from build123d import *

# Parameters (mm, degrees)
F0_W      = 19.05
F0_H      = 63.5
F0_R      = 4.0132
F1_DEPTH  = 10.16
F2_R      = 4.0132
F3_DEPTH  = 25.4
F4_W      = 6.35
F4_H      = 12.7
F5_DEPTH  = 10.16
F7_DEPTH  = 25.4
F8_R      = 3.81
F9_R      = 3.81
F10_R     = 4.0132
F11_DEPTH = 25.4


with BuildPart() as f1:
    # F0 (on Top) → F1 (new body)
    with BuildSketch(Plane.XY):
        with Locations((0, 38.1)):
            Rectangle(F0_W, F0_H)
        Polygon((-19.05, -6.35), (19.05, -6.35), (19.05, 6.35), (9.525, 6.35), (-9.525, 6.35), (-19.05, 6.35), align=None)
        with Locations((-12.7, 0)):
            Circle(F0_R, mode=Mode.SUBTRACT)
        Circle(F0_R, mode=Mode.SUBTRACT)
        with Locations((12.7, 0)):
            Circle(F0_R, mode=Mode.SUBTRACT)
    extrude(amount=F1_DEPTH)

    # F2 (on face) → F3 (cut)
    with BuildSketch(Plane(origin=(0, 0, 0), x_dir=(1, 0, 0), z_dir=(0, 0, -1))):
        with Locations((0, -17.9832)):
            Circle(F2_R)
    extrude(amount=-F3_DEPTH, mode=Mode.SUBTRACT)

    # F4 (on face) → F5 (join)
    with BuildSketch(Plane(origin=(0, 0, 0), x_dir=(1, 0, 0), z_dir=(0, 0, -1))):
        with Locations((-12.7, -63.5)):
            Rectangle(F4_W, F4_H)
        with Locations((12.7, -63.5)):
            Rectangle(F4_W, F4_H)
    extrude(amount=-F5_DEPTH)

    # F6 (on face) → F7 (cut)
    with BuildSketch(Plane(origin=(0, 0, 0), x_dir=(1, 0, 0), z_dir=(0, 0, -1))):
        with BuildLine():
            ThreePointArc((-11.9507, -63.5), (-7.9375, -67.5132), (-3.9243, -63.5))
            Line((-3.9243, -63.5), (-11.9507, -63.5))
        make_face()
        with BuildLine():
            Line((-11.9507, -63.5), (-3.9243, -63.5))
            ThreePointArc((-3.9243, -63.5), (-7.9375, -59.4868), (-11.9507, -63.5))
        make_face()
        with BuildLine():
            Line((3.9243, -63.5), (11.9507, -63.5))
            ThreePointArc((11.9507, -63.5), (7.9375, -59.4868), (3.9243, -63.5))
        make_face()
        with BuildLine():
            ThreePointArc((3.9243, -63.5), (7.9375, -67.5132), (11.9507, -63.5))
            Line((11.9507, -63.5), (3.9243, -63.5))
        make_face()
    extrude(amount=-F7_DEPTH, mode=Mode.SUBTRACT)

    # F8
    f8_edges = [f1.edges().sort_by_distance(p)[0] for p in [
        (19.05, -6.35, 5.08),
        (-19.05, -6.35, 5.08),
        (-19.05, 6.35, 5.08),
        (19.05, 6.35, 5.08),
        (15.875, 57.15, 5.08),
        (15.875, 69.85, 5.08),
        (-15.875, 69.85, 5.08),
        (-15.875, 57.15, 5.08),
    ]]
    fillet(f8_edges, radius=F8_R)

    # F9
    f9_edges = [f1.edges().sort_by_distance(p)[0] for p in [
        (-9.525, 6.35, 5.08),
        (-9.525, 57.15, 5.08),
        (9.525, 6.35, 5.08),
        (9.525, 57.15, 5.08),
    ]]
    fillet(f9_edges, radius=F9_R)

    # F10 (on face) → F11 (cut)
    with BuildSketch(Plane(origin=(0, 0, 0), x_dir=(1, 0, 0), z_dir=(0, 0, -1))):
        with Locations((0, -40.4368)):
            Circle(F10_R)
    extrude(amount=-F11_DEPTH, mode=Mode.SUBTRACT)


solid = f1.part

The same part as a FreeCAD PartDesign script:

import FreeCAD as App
import Part
import Sketcher

V = App.Vector
Q = App.Units.Quantity


def edges_at(feature, points):
    """Names of the edges that pass closest to the given points."""
    edges = feature.Shape.Edges
    near = lambda p: min(range(len(edges)), key=lambda i: edges[i].distToShape(Part.Vertex(*p))[0])
    return sorted({f"Edge{near(p) + 1}" for p in points})


def add_polygon(sketch, points):
    """Adds a closed chain of lines whose ends are joined by coincident constraints."""
    first, n = sketch.GeometryCount, len(points)
    for a, b in zip(points, points[1:] + points[:1]):
        sketch.addGeometry(Part.LineSegment(App.Vector(*a, 0), App.Vector(*b, 0)), False)
    for i in range(n):
        sketch.addConstraint(Sketcher.Constraint("Coincident", first + i, 2, first + (i + 1) % n, 1))

doc = App.newDocument("Part")
params = doc.addObject("Spreadsheet::Sheet", "Params")
for row, (alias, value) in enumerate([
    ("sketch1_diameter", "0.316 in"),
    ("sketch1_width", "1.5 in"),
    ("sketch1_height", "2.5 in"),
    ("sketch1_height2", "0.5 in"),
    ("sketch1_width2", "0.75 in"),
    ("pad1_length", "0.4 in"),
    ("sketch2_diameter", "0.316 in"),
    ("pocket1_length", "1 in"),
    ("sketch3_height", "0.5 in"),
    ("sketch3_width", "0.25 in"),
    ("pad2_length", "0.4 in"),
    ("sketch4_diameter", "0.316 in"),
    ("pocket2_length", "1 in"),
    ("fillet_radius", "0.15 in"),
    ("fillet2_radius", "0.15 in"),
    ("sketch5_diameter", "0.316 in"),
    ("pocket3_length", "1 in"),
], start=1):
    params.set(f"A{row}", alias)
    params.set(f"B{row}", "=" + value)
    params.setAlias(f"B{row}", alias)

body = doc.addObject("PartDesign::Body", "Body")

# Sketch on XY plane
sketch1 = doc.addObject("Sketcher::SketchObject", "Sketch")
body.addObject(sketch1)
sketch1.AttachmentSupport = (doc.XY_Plane, [""])
sketch1.MapMode = "FlatFace"
add_polygon(sketch1, [(-9.525, 69.85), (-9.525, 6.35), (-19.05, 6.35), (-19.05, -6.35), (19.05, -6.35), (19.05, 6.35), (9.525, 6.35), (9.525, 69.85)])  # lines 0-7
sketch1.addGeometry(Part.Circle(V(-12.7, 0, 0), V(0, 0, 1), 4.0132), False)  # 8
sketch1.addGeometry(Part.Circle(V(0, 0, 0), V(0, 0, 1), 4.0132), False)  # 9
sketch1.addGeometry(Part.Circle(V(12.7, 0, 0), V(0, 0, 1), 4.0132), False)  # 10
sketch1.addConstraint([
    Sketcher.Constraint("Vertical", 0),
    Sketcher.Constraint("Horizontal", 1),
    Sketcher.Constraint("Vertical", 2),
    Sketcher.Constraint("Horizontal", 3),
    Sketcher.Constraint("Vertical", 4),
    Sketcher.Constraint("Horizontal", 5),
    Sketcher.Constraint("Vertical", 6),
    Sketcher.Constraint("Horizontal", 7),
    Sketcher.Constraint("Coincident", 9, 3, -1, 1),
    Sketcher.Constraint("Equal", 8, 9),
    Sketcher.Constraint("Equal", 9, 10),
    Sketcher.Constraint("Symmetric", 8, 3, 10, 3, -1, 1),
    Sketcher.Constraint("Symmetric", 1, 2, 3, 2, -1, 1),
    Sketcher.Constraint("Symmetric", 0, 2, 5, 2, -2),
    Sketcher.Constraint("PointOnObject", 8, 3, -1),
    Sketcher.Constraint("Diameter", 8, Q("0.316 in")),
    Sketcher.Constraint("DistanceX", 3, 1, 3, 2, Q("1.5 in")),
    Sketcher.Constraint("DistanceY", 0, 2, 0, 1, Q("2.5 in")),
    Sketcher.Constraint("DistanceY", 2, 2, 2, 1, Q("0.5 in")),
    Sketcher.Constraint("DistanceX", 8, 3, 10, 3, Q("1 in")),
    Sketcher.Constraint("DistanceX", 7, 2, 7, 1, Q("0.75 in")),
])
sketch1.setExpression("Constraints[23]", "Params.sketch1_diameter")
sketch1.setExpression("Constraints[24]", "Params.sketch1_width")
sketch1.setExpression("Constraints[25]", "Params.sketch1_height")
sketch1.setExpression("Constraints[26]", "Params.sketch1_height2")
sketch1.setExpression("Constraints[28]", "Params.sketch1_width2")
pad1 = doc.addObject("PartDesign::Pad", "Pad")
body.addObject(pad1)
pad1.Profile = sketch1
pad1.setExpression("Length", "Params.pad1_length")

# Sketch on XY plane
sketch2 = doc.addObject("Sketcher::SketchObject", "Sketch001")
body.addObject(sketch2)
sketch2.AttachmentSupport = (doc.XY_Plane, [""])
sketch2.MapMode = "FlatFace"
sketch2.addGeometry(Part.Circle(V(0, 17.9832, 0), V(0, 0, 1), 4.0132), False)
sketch2.addConstraint([
    Sketcher.Constraint("PointOnObject", 0, 3, -2),
    Sketcher.Constraint("Diameter", 0, Q("0.316 in")),
    Sketcher.Constraint("DistanceY", -1, 1, 0, 3, Q("0.708 in")),
])
sketch2.setExpression("Constraints[1]", "Params.sketch2_diameter")
pocket1 = doc.addObject("PartDesign::Pocket", "Pocket")
body.addObject(pocket1)
pocket1.Profile = sketch2
pocket1.setExpression("Length", "Params.pocket1_length")
pocket1.Reversed = True

# Sketch on XY plane
sketch3 = doc.addObject("Sketcher::SketchObject", "Sketch002")
body.addObject(sketch3)
sketch3.AttachmentSupport = (doc.XY_Plane, [""])
sketch3.MapMode = "FlatFace"
add_polygon(sketch3, [(-15.875, 57.15), (-15.875, 69.85), (-9.525, 69.85), (-9.525, 57.15)])  # lines 0-3
add_polygon(sketch3, [(9.525, 57.15), (9.525, 69.85), (15.875, 69.85), (15.875, 57.15)])  # lines 4-7
sketch3.addConstraint([
    Sketcher.Constraint("Vertical", 0),
    Sketcher.Constraint("Horizontal", 1),
    Sketcher.Constraint("Vertical", 2),
    Sketcher.Constraint("Horizontal", 3),
    Sketcher.Constraint("Vertical", 4),
    Sketcher.Constraint("Horizontal", 5),
    Sketcher.Constraint("Vertical", 6),
    Sketcher.Constraint("Horizontal", 7),
    Sketcher.Constraint("Symmetric", 1, 2, 4, 2, -2),
    Sketcher.Constraint("Symmetric", 3, 2, 6, 2, -2),
    Sketcher.Constraint("DistanceY", 0, 1, 0, 2, Q("0.5 in")),
    Sketcher.Constraint("DistanceX", 0, 2, 4, 2, Q("1 in")),
    Sketcher.Constraint("DistanceX", 1, 1, 1, 2, Q("0.25 in")),
    Sketcher.Constraint("DistanceY", -1, 1, 0, 2, Q("2.75 in")),
])
sketch3.setExpression("Constraints[18]", "Params.sketch3_height")
sketch3.setExpression("Constraints[20]", "Params.sketch3_width")
pad2 = doc.addObject("PartDesign::Pad", "Pad001")
body.addObject(pad2)
pad2.Profile = sketch3
pad2.setExpression("Length", "Params.pad2_length")

# Sketch on XY plane
sketch4 = doc.addObject("Sketcher::SketchObject", "Sketch003")
body.addObject(sketch4)
sketch4.AttachmentSupport = (doc.XY_Plane, [""])
sketch4.MapMode = "FlatFace"
sketch4.addGeometry([
    Part.Circle(V(-7.9375, 63.5, 0), V(0, 0, 1), 4.0132),
    Part.Circle(V(7.9375, 63.5, 0), V(0, 0, 1), 4.0132),
], False)
sketch4.addConstraint([
    Sketcher.Constraint("Equal", 0, 1),
    Sketcher.Constraint("Symmetric", 0, 3, 1, 3, -2),
    Sketcher.Constraint("Diameter", 0, Q("0.316 in")),
    Sketcher.Constraint("DistanceY", -1, 1, 0, 3, Q("2.5 in")),
    Sketcher.Constraint("DistanceX", 0, 3, -1, 1, Q("0.3125 in")),
])
sketch4.setExpression("Constraints[2]", "Params.sketch4_diameter")
pocket2 = doc.addObject("PartDesign::Pocket", "Pocket001")
body.addObject(pocket2)
pocket2.Profile = sketch4
pocket2.setExpression("Length", "Params.pocket2_length")
pocket2.Reversed = True
doc.recompute()

fillet = doc.addObject("PartDesign::Fillet", "Fillet")
body.addObject(fillet)
fillet.Base = (pocket2, edges_at(pocket2, [
    (19.05, -6.35, 5.08),
    (-19.05, -6.35, 5.08),
    (-19.05, 6.35, 5.08),
    (19.05, 6.35, 5.08),
    (15.875, 57.15, 5.08),
    (15.875, 69.85, 5.08),
    (-15.875, 69.85, 5.08),
    (-15.875, 57.15, 5.08),
]))
fillet.setExpression("Radius", "Params.fillet_radius")
doc.recompute()

fillet2 = doc.addObject("PartDesign::Fillet", "Fillet001")
body.addObject(fillet2)
fillet2.Base = (fillet, edges_at(fillet, [
    (-9.525, 6.35, 5.08),
    (-9.525, 57.15, 5.08),
    (9.525, 6.35, 5.08),
    (9.525, 57.15, 5.08),
]))
fillet2.setExpression("Radius", "Params.fillet2_radius")

# Sketch on XY plane
sketch5 = doc.addObject("Sketcher::SketchObject", "Sketch004")
body.addObject(sketch5)
sketch5.AttachmentSupport = (doc.XY_Plane, [""])
sketch5.MapMode = "FlatFace"
sketch5.addGeometry(Part.Circle(V(0, 40.4368, 0), V(0, 0, 1), 4.0132), False)
sketch5.addConstraint([
    Sketcher.Constraint("PointOnObject", 0, 3, -2),
    Sketcher.Constraint("Diameter", 0, Q("0.316 in")),
    Sketcher.Constraint("DistanceY", -1, 1, 0, 3, Q("1.592 in")),
])
sketch5.setExpression("Constraints[1]", "Params.sketch5_diameter")
pocket3 = doc.addObject("PartDesign::Pocket", "Pocket002")
body.addObject(pocket3)
pocket3.Profile = sketch5
pocket3.setExpression("Length", "Params.pocket3_length")
pocket3.Reversed = True

doc.recompute()
